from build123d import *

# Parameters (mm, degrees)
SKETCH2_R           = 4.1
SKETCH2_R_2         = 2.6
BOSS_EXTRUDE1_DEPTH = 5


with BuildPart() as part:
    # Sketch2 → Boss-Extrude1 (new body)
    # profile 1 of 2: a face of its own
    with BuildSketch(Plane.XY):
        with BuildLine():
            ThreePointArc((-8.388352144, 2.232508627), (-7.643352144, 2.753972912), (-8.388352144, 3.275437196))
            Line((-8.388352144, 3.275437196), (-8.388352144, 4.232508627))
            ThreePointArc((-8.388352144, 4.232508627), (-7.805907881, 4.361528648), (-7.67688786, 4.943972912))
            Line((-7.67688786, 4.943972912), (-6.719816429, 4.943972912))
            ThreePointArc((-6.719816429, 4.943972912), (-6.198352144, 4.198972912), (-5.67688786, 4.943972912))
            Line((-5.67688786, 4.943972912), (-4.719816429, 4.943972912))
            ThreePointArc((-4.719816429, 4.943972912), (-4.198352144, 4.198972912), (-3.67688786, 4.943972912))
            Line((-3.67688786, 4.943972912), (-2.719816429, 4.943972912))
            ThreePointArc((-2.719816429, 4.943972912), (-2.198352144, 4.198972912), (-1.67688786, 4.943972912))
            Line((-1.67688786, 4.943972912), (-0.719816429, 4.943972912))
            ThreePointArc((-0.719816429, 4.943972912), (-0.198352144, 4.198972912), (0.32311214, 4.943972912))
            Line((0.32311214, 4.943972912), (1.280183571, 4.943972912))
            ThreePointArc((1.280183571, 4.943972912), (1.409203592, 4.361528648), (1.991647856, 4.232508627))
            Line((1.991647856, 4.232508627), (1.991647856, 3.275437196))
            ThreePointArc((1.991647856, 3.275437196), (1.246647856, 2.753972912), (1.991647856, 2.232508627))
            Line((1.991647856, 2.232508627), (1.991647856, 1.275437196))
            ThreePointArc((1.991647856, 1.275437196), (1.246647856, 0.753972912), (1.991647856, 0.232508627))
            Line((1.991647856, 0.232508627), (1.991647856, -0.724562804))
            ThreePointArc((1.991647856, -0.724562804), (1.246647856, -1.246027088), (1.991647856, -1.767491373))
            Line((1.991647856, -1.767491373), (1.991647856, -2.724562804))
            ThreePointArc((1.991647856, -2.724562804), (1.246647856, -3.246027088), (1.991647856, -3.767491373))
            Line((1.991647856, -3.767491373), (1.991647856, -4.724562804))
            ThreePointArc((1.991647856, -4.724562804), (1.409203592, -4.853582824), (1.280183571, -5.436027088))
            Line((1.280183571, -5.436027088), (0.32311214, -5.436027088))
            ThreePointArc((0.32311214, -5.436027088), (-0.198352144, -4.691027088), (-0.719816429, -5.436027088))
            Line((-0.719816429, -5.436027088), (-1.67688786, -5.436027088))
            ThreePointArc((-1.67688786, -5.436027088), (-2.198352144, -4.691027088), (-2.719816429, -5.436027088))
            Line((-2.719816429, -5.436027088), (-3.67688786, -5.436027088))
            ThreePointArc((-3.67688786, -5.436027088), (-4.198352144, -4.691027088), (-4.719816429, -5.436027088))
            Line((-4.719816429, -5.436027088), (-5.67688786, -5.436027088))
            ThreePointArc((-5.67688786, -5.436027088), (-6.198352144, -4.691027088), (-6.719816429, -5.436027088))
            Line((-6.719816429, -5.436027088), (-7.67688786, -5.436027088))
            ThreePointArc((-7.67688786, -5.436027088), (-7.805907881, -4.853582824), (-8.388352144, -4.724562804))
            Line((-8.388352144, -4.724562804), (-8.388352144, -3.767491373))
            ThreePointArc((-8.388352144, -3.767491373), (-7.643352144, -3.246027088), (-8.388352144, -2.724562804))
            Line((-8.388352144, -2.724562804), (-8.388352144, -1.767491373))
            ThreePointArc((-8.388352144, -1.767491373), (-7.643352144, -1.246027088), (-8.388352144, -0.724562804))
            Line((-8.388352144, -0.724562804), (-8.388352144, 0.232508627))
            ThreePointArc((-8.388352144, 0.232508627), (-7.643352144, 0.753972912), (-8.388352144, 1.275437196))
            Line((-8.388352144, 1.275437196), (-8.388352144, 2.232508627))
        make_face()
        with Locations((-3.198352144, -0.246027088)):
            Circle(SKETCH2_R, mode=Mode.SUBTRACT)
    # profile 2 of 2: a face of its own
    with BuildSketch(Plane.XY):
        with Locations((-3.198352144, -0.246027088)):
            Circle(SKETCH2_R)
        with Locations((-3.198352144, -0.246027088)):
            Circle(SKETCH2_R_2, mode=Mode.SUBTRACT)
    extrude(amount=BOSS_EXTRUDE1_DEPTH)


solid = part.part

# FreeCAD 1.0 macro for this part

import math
import FreeCAD as App
import Part
import Sketcher

doc = App.newDocument("Part")
params = doc.addObject("Spreadsheet::Sheet", "Params")
for row, (alias, value) in enumerate([
    ("sketch1_diameter", "5.2 mm"),
    ("pad1_length", "5 mm"),
], start=1):
    params.set(f"A{row}", alias)
    params.set(f"B{row}", "=" + value)
    params.setAlias(f"B{row}", alias)

body = doc.addObject("PartDesign::Body", "Body")

# Sketch on XY plane
sketch1 = doc.addObject("Sketcher::SketchObject", "Sketch")
body.addObject(sketch1)
sketch1.AttachmentSupport = (doc.XY_Plane, [""])
sketch1.MapMode = "FlatFace"
sketch1.addGeometry([
    Part.ArcOfCircle(Part.Circle(App.Vector(-8.2, 2.8, 0), App.Vector(0, 0, 1), 0.6), math.radians(-110), math.radians(110)),  # 0
    Part.LineSegment(App.Vector(-8.4, 2.2, 0), App.Vector(-8.4, 1.3, 0)),  # 1
    Part.ArcOfCircle(Part.Circle(App.Vector(-8.2, 0.8, 0), App.Vector(0, 0, 1), 0.6), math.radians(-110), math.radians(110)),  # 2
    Part.LineSegment(App.Vector(-8.4, 0.2, 0), App.Vector(-8.4, -0.7, 0)),  # 3
    Part.ArcOfCircle(Part.Circle(App.Vector(-8.2, -1.2, 0), App.Vector(0, 0, 1), 0.6), math.radians(-110), math.radians(110)),  # 4
    Part.LineSegment(App.Vector(-8.4, -1.8, 0), App.Vector(-8.4, -2.7, 0)),  # 5
    Part.ArcOfCircle(Part.Circle(App.Vector(-8.2, -3.2, 0), App.Vector(0, 0, 1), 0.6), math.radians(-110), math.radians(110)),  # 6
    Part.LineSegment(App.Vector(-8.4, -3.8, 0), App.Vector(-8.4, -4.7, 0)),  # 7
    Part.ArcOfCircle(Part.Circle(App.Vector(-8.2, -5.2, 0), App.Vector(0, 0, 1), 0.6), math.radians(-20), math.radians(110)),  # 8
    Part.LineSegment(App.Vector(-7.7, -5.4, 0), App.Vector(-6.7, -5.4, 0)),  # 9
    Part.ArcOfCircle(Part.Circle(App.Vector(-6.2, -5.2, 0), App.Vector(0, 0, 1), 0.6), math.radians(-20), math.radians(200)),  # 10
    Part.LineSegment(App.Vector(-5.7, -5.4, 0), App.Vector(-4.7, -5.4, 0)),  # 11
    Part.ArcOfCircle(Part.Circle(App.Vector(-4.2, -5.2, 0), App.Vector(0, 0, 1), 0.6), math.radians(-20), math.radians(200)),  # 12
    Part.LineSegment(App.Vector(-3.7, -5.4, 0), App.Vector(-2.7, -5.4, 0)),  # 13
    Part.ArcOfCircle(Part.Circle(App.Vector(-2.2, -5.2, 0), App.Vector(0, 0, 1), 0.6), math.radians(-20), math.radians(200)),  # 14
    Part.LineSegment(App.Vector(-1.7, -5.4, 0), App.Vector(-0.7, -5.4, 0)),  # 15
    Part.ArcOfCircle(Part.Circle(App.Vector(-0.2, -5.2, 0), App.Vector(0, 0, 1), 0.6), math.radians(-20), math.radians(200)),  # 16
    Part.LineSegment(App.Vector(0.3, -5.4, 0), App.Vector(1.3, -5.4, 0)),  # 17
    Part.ArcOfCircle(Part.Circle(App.Vector(1.8, -5.2, 0), App.Vector(0, 0, 1), 0.6), math.radians(70), math.radians(200)),  # 18
    Part.LineSegment(App.Vector(2, -4.7, 0), App.Vector(2, -3.8, 0)),  # 19
    Part.ArcOfCircle(Part.Circle(App.Vector(1.8, -3.2, 0), App.Vector(0, 0, 1), 0.6), math.radians(70), math.radians(290)),  # 20
    Part.LineSegment(App.Vector(2, -2.7, 0), App.Vector(2, -1.8, 0)),  # 21
    Part.ArcOfCircle(Part.Circle(App.Vector(1.8, -1.2, 0), App.Vector(0, 0, 1), 0.6), math.radians(70), math.radians(290)),  # 22
    Part.LineSegment(App.Vector(2, -0.7, 0), App.Vector(2, 0.2, 0)),  # 23
    Part.ArcOfCircle(Part.Circle(App.Vector(1.8, 0.8, 0), App.Vector(0, 0, 1), 0.6), math.radians(70), math.radians(290)),  # 24
    Part.LineSegment(App.Vector(2, 1.3, 0), App.Vector(2, 2.2, 0)),  # 25
    Part.ArcOfCircle(Part.Circle(App.Vector(1.8, 2.8, 0), App.Vector(0, 0, 1), 0.6), math.radians(70), math.radians(290)),  # 26
    Part.LineSegment(App.Vector(2, 3.3, 0), App.Vector(2, 4.2, 0)),  # 27
    Part.ArcOfCircle(Part.Circle(App.Vector(1.8, 4.8, 0), App.Vector(0, 0, 1), 0.6), math.radians(160), math.radians(290)),  # 28
    Part.LineSegment(App.Vector(1.3, 4.9, 0), App.Vector(0.3, 4.9, 0)),  # 29
    Part.ArcOfCircle(Part.Circle(App.Vector(-0.2, 4.8, 0), App.Vector(0, 0, 1), 0.6), math.radians(160), math.radians(380)),  # 30
    Part.LineSegment(App.Vector(-0.7, 4.9, 0), App.Vector(-1.7, 4.9, 0)),  # 31
    Part.ArcOfCircle(Part.Circle(App.Vector(-2.2, 4.8, 0), App.Vector(0, 0, 1), 0.6), math.radians(160), math.radians(380)),  # 32
    Part.LineSegment(App.Vector(-2.7, 4.9, 0), App.Vector(-3.7, 4.9, 0)),  # 33
    Part.ArcOfCircle(Part.Circle(App.Vector(-4.2, 4.8, 0), App.Vector(0, 0, 1), 0.6), math.radians(160), math.radians(380)),  # 34
    Part.LineSegment(App.Vector(-4.7, 4.9, 0), App.Vector(-5.7, 4.9, 0)),  # 35
    Part.ArcOfCircle(Part.Circle(App.Vector(-6.2, 4.8, 0), App.Vector(0, 0, 1), 0.6), math.radians(160), math.radians(380)),  # 36
    Part.LineSegment(App.Vector(-6.7, 4.9, 0), App.Vector(-7.7, 4.9, 0)),  # 37
    Part.ArcOfCircle(Part.Circle(App.Vector(-8.2, 4.8, 0), App.Vector(0, 0, 1), 0.6), math.radians(-110), math.radians(20)),  # 38
    Part.LineSegment(App.Vector(-8.4, 4.2, 0), App.Vector(-8.4, 3.3, 0)),  # 39
    Part.Circle(App.Vector(-3.2, -0.2, 0), App.Vector(0, 0, 1), 2.6),  # 40
], False)
sketch1.addConstraint([
    Sketcher.Constraint("Coincident", 0, 1, 1, 1),
    Sketcher.Constraint("Coincident", 1, 2, 2, 2),
    Sketcher.Constraint("Coincident", 2, 1, 3, 1),
    Sketcher.Constraint("Coincident", 3, 2, 4, 2),
    Sketcher.Constraint("Coincident", 4, 1, 5, 1),
    Sketcher.Constraint("Coincident", 5, 2, 6, 2),
    Sketcher.Constraint("Coincident", 6, 1, 7, 1),
    Sketcher.Constraint("Coincident", 7, 2, 8, 2),
    Sketcher.Constraint("Coincident", 8, 1, 9, 1),
    Sketcher.Constraint("Coincident", 9, 2, 10, 2),
    Sketcher.Constraint("Coincident", 10, 1, 11, 1),
    Sketcher.Constraint("Coincident", 11, 2, 12, 2),
    Sketcher.Constraint("Coincident", 12, 1, 13, 1),
    Sketcher.Constraint("Coincident", 13, 2, 14, 2),
    Sketcher.Constraint("Coincident", 14, 1, 15, 1),
    Sketcher.Constraint("Coincident", 15, 2, 16, 2),
    Sketcher.Constraint("Coincident", 16, 1, 17, 1),
    Sketcher.Constraint("Coincident", 17, 2, 18, 2),
    Sketcher.Constraint("Coincident", 18, 1, 19, 1),
    Sketcher.Constraint("Coincident", 19, 2, 20, 2),
    Sketcher.Constraint("Coincident", 20, 1, 21, 1),
    Sketcher.Constraint("Coincident", 21, 2, 22, 2),
    Sketcher.Constraint("Coincident", 22, 1, 23, 1),
    Sketcher.Constraint("Coincident", 23, 2, 24, 2),
    Sketcher.Constraint("Coincident", 24, 1, 25, 1),
    Sketcher.Constraint("Coincident", 25, 2, 26, 2),
    Sketcher.Constraint("Coincident", 26, 1, 27, 1),
    Sketcher.Constraint("Coincident", 27, 2, 28, 2),
    Sketcher.Constraint("Coincident", 28, 1, 29, 1),
    Sketcher.Constraint("Coincident", 29, 2, 30, 2),
    Sketcher.Constraint("Coincident", 30, 1, 31, 1),
    Sketcher.Constraint("Coincident", 31, 2, 32, 2),
    Sketcher.Constraint("Coincident", 32, 1, 33, 1),
    Sketcher.Constraint("Coincident", 33, 2, 34, 2),
    Sketcher.Constraint("Coincident", 34, 1, 35, 1),
    Sketcher.Constraint("Coincident", 35, 2, 36, 2),
    Sketcher.Constraint("Coincident", 36, 1, 37, 1),
    Sketcher.Constraint("Coincident", 37, 2, 38, 2),
    Sketcher.Constraint("Coincident", 38, 1, 39, 1),
    Sketcher.Constraint("Coincident", 39, 2, 0, 2),
    Sketcher.Constraint("Vertical", 1),
    Sketcher.Constraint("Vertical", 3),
    Sketcher.Constraint("Vertical", 5),
    Sketcher.Constraint("Vertical", 7),
    Sketcher.Constraint("Horizontal", 9),
    Sketcher.Constraint("Horizontal", 11),
    Sketcher.Constraint("Horizontal", 13),
    Sketcher.Constraint("Horizontal", 15),
    Sketcher.Constraint("Horizontal", 17),
    Sketcher.Constraint("Vertical", 19),
    Sketcher.Constraint("Vertical", 21),
    Sketcher.Constraint("Vertical", 23),
    Sketcher.Constraint("Vertical", 25),
    Sketcher.Constraint("Vertical", 27),
    Sketcher.Constraint("Horizontal", 29),
    Sketcher.Constraint("Horizontal", 31),
    Sketcher.Constraint("Horizontal", 33),
    Sketcher.Constraint("Horizontal", 35),
    Sketcher.Constraint("Horizontal", 37),
    Sketcher.Constraint("Vertical", 39),
    Sketcher.Constraint("Equal", 0, 2),
    Sketcher.Constraint("Equal", 2, 4),
    Sketcher.Constraint("Equal", 4, 6),
    Sketcher.Constraint("Equal", 6, 8),
    Sketcher.Constraint("Equal", 8, 10),
    Sketcher.Constraint("Equal", 10, 12),
    Sketcher.Constraint("Equal", 12, 14),
    Sketcher.Constraint("Equal", 14, 16),
    Sketcher.Constraint("Equal", 16, 18),
    Sketcher.Constraint("Equal", 18, 20),
    Sketcher.Constraint("Equal", 20, 22),
    Sketcher.Constraint("Equal", 22, 24),
    Sketcher.Constraint("Equal", 24, 26),
    Sketcher.Constraint("Equal", 26, 28),
    Sketcher.Constraint("Equal", 28, 30),
    Sketcher.Constraint("Equal", 30, 32),
    Sketcher.Constraint("Equal", 32, 34),
    Sketcher.Constraint("Equal", 34, 36),
    Sketcher.Constraint("Equal", 36, 38),
    Sketcher.Constraint("Horizontal", 8, 3, 10, 3),
    Sketcher.Constraint("Horizontal", 10, 3, 12, 3),
    Sketcher.Constraint("Horizontal", 12, 3, 14, 3),
    Sketcher.Constraint("Horizontal", 14, 3, 16, 3),
    Sketcher.Constraint("Horizontal", 16, 3, 18, 3),
    Sketcher.Constraint("Horizontal", 6, 3, 20, 3),
    Sketcher.Constraint("Horizontal", 4, 3, 22, 3),
    Sketcher.Constraint("Horizontal", 2, 3, 24, 3),
    Sketcher.Constraint("Horizontal", 0, 3, 26, 3),
    Sketcher.Constraint("Horizontal", 28, 3, 30, 3),
    Sketcher.Constraint("Horizontal", 30, 3, 32, 3),
    Sketcher.Constraint("Horizontal", 32, 3, 34, 3),
    Sketcher.Constraint("Horizontal", 34, 3, 36, 3),
    Sketcher.Constraint("Horizontal", 36, 3, 38, 3),
    Sketcher.Constraint("Horizontal", 9, 2, 10, 1),
    Sketcher.Constraint("Horizontal", 11, 2, 12, 1),
    Sketcher.Constraint("Horizontal", 13, 2, 14, 1),
    Sketcher.Constraint("Horizontal", 15, 2, 16, 1),
    Sketcher.Constraint("Horizontal", 7, 2, 18, 1),
    Sketcher.Constraint("Horizontal", 6, 1, 19, 2),
    Sketcher.Constraint("Horizontal", 5, 2, 20, 1),
    Sketcher.Constraint("Horizontal", 4, 1, 21, 2),
    Sketcher.Constraint("Horizontal", 3, 2, 22, 1),
    Sketcher.Constraint("Horizontal", 2, 1, 23, 2),
    Sketcher.Constraint("Horizontal", 1, 2, 24, 1),
    Sketcher.Constraint("Horizontal", 0, 1, 25, 2),
    Sketcher.Constraint("Horizontal", 29, 2, 30, 1),
    Sketcher.Constraint("Horizontal", 31, 2, 32, 1),
    Sketcher.Constraint("Horizontal", 33, 2, 34, 1),
    Sketcher.Constraint("Horizontal", 35, 2, 36, 1),
    Sketcher.Constraint("Horizontal", 27, 2, 38, 1),
    Sketcher.Constraint("Horizontal", 26, 1, 39, 2),
    Sketcher.Constraint("Vertical", 0, 3, 2, 3),
    Sketcher.Constraint("Vertical", 2, 3, 4, 3),
    Sketcher.Constraint("Vertical", 4, 3, 6, 3),
    Sketcher.Constraint("Vertical", 6, 3, 8, 3),
    Sketcher.Constraint("Vertical", 26, 3, 28, 3),
    Sketcher.Constraint("Vertical", 16, 3, 30, 3),
    Sketcher.Constraint("Vertical", 14, 3, 32, 3),
    Sketcher.Constraint("Vertical", 12, 3, 34, 3),
    Sketcher.Constraint("Vertical", 10, 3, 36, 3),
    Sketcher.Constraint("Vertical", 1, 2, 2, 1),
    Sketcher.Constraint("Vertical", 3, 2, 4, 1),
    Sketcher.Constraint("Vertical", 5, 2, 6, 1),
    Sketcher.Constraint("Vertical", 25, 2, 26, 1),
    Sketcher.Constraint("Vertical", 17, 2, 28, 1),
    Sketcher.Constraint("Equal", 9, 11),
    Sketcher.Constraint("Equal", 11, 13),
    Sketcher.Constraint("Equal", 13, 15),
    Sketcher.Constraint("Equal", 15, 17),
    Sketcher.Constraint("Equal", 37, 1),
    Sketcher.Constraint("Equal", 1, 3),
    Sketcher.Constraint("Equal", 3, 5),
    Sketcher.Constraint("Equal", 5, 7),
    Sketcher.Constraint("Equal", 25, 27),
    Sketcher.Constraint("Diameter", 40, 5.2),
    Sketcher.Constraint("Radius", 0, 0.555),
    Sketcher.Constraint("DistanceX", 9, 1, 9, 2, 0.957071),
    Sketcher.Constraint("DistanceY", -1, 1, 0, 1, 2.232509),
    Sketcher.Constraint("DistanceY", -1, 1, 2, 1, 0.232509),
    Sketcher.Constraint("DistanceX", 0, 3, -1, 1, 8.198352),
    Sketcher.Constraint("DistanceX", 10, 3, -1, 1, 6.198352),
    Sketcher.Constraint("DistanceX", 40, 3, -1, 1, 3.198352),
    Sketcher.Constraint("DistanceY", 40, 3, -1, 1, 0.246027),
])
sketch1.setExpression("Constraints[134]", "Params.sketch1_diameter")
pad1 = doc.addObject("PartDesign::Pad", "Pad")
body.addObject(pad1)
pad1.Profile = sketch1
pad1.setExpression("Length", "Params.pad1_length")

doc.recompute()
